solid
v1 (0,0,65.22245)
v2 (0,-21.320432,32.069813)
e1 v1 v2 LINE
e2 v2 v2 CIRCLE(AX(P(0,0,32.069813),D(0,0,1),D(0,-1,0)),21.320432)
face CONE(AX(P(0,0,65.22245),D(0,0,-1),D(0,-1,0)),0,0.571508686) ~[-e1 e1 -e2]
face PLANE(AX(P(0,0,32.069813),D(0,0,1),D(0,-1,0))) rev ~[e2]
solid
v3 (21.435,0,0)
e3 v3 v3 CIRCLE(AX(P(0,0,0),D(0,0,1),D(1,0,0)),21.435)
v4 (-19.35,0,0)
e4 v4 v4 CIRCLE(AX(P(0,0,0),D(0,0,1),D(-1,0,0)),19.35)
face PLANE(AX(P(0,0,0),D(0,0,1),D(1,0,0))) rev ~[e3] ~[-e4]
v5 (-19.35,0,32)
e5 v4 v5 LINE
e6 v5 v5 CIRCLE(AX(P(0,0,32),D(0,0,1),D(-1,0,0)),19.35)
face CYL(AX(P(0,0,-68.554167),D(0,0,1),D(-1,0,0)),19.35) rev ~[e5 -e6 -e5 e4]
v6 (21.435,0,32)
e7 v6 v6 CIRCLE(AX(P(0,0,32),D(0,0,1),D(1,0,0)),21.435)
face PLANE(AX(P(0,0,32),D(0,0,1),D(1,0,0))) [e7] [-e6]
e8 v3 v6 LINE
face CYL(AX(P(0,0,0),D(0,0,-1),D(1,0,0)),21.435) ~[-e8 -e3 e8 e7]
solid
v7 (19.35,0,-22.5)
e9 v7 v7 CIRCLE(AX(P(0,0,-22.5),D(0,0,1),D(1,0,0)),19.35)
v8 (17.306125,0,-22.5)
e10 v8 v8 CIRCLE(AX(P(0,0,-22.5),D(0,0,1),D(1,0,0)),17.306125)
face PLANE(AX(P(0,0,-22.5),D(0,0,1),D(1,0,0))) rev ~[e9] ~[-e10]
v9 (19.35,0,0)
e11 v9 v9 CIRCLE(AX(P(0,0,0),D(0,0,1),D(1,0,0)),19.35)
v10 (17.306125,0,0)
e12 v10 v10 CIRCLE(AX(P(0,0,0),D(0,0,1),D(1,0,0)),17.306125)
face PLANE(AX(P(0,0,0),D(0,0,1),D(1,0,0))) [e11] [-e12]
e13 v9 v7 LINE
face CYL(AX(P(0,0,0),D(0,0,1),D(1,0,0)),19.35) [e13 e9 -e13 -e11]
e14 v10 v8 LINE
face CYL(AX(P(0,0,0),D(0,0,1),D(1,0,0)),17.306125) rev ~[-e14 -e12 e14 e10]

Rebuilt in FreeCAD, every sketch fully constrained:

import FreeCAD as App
import Part
import Sketcher
from FreeCAD import Vector
Q = App.Units.Quantity


def add_polygon(sketch, points):
    """Adds a closed chain of lines whose ends are joined by coincident constraints."""
    first, n = sketch.GeometryCount, len(points)
    for a, b in zip(points, points[1:] + points[:1]):
        sketch.addGeometry(Part.LineSegment(App.Vector(*a, 0), App.Vector(*b, 0)), False)
    for i in range(n):
        sketch.addConstraint(Sketcher.Constraint("Coincident", first + i, 2, first + (i + 1) % n, 1))

doc = App.newDocument("Part")
params = doc.addObject("Spreadsheet::Sheet", "Params")
for row, (alias, value) in enumerate([
    ("sketch1_diameter", "42.87 mm"),
    ("pad1_length", "32 mm"),
    ("sketch2_diameter", "38.7 mm"),
    ("hole_diameter", "38.7 mm"),
    ("revolution_angle", "360 deg"),
    ("sketch4_diameter", "38.7 mm"),
    ("pad2_length", "22.5 mm"),
], start=1):
    params.set(f"A{row}", alias)
    params.set(f"B{row}", "=" + value)
    params.setAlias(f"B{row}", alias)

body = doc.addObject("PartDesign::Body", "Body")

# Sketch on XY plane
sketch1 = doc.addObject("Sketcher::SketchObject", "Sketch")
body.addObject(sketch1)
sketch1.AttachmentSupport = (doc.XY_Plane, [""])
sketch1.MapMode = "FlatFace"
sketch1.addGeometry(Part.Circle(Vector(0, 0, 0), Vector(0, 0, 1), 21.435), False)
sketch1.addConstraint([
    Sketcher.Constraint("Coincident", 0, 3, -1, 1),
    Sketcher.Constraint("Diameter", 0, Q("42.87 mm")),
])
sketch1.setExpression("Constraints[1]", "Params.sketch1_diameter")
pad1 = doc.addObject("PartDesign::Pad", "Pad")
body.addObject(pad1)
pad1.Profile = sketch1
pad1.setExpression("Length", "Params.pad1_length")

# Sketch on XY plane
sketch2 = doc.addObject("Sketcher::SketchObject", "Sketch001")
body.addObject(sketch2)
sketch2.AttachmentSupport = (doc.XY_Plane, [""])
sketch2.MapMode = "FlatFace"
sketch2.addGeometry(Part.Circle(Vector(0, 0, 0), Vector(0, 0, 1), 19.35), False)
sketch2.addConstraint([
    Sketcher.Constraint("Coincident", 0, 3, -1, 1),
    Sketcher.Constraint("Diameter", 0, Q("38.7 mm")),
])
sketch2.setExpression("Constraints[1]", "Params.sketch2_diameter")
doc.recompute()
hole = doc.addObject("PartDesign::Hole", "Hole")
body.addObject(hole)
hole.Profile = sketch2
hole.ThreadType = "None"
hole.setExpression("Diameter", "Params.hole_diameter")
hole.DepthType = "ThroughAll"
hole.Reversed = True
body2 = doc.addObject("PartDesign::Body", "Body001")

# Sketch on YZ plane
sketch3 = doc.addObject("Sketcher::SketchObject", "Sketch002")
body2.addObject(sketch3)
sketch3.AttachmentSupport = (doc.getObject("YZ_Plane001"), [""])
sketch3.MapMode = "FlatFace"
add_polygon(sketch3, [(0, 32.069813), (0, 65.22245), (-21.320432, 32.069813)])  # lines 0-2
sketch3.addConstraint([
    Sketcher.Constraint("Vertical", 0),
    Sketcher.Constraint("Horizontal", 2),
    Sketcher.Constraint("PointOnObject", 0, 2, -2),
    Sketcher.Constraint("DistanceX", 2, 1, 2, 2, Q("21.320432 mm")),
    Sketcher.Constraint("Distance", 1, Q("39.416471 mm")),
    Sketcher.Constraint("DistanceY", -1, 1, 0, 2, Q("65.22245 mm")),
])
revolution = doc.addObject("PartDesign::Revolution", "Revolution")
body2.addObject(revolution)
revolution.Profile = sketch3
revolution.ReferenceAxis = (sketch3, ["V_Axis"])
revolution.setExpression("Angle", "Params.revolution_angle")
body3 = doc.addObject("PartDesign::Body", "Body002")

# Sketch on XY plane
sketch4 = doc.addObject("Sketcher::SketchObject", "Sketch003")
body3.addObject(sketch4)
sketch4.AttachmentSupport = (doc.getObject("XY_Plane002"), [""])
sketch4.MapMode = "FlatFace"
sketch4.addGeometry([
    Part.Circle(Vector(0, 0, 0), Vector(0, 0, 1), 19.35),
    Part.Circle(Vector(0, 0, 0), Vector(0, 0, 1), 17.306125),
], False)
sketch4.addConstraint([
    Sketcher.Constraint("Coincident", 0, 3, -1, 1),
    Sketcher.Constraint("Coincident", 1, 3, -1, 1),
    Sketcher.Constraint("Diameter", 0, Q("38.7 mm")),
    Sketcher.Constraint("Diameter", 1, Q("34.61225 mm")),
])
sketch4.setExpression("Constraints[2]", "Params.sketch4_diameter")
pad2 = doc.addObject("PartDesign::Pad", "Pad001")
body3.addObject(pad2)
pad2.Profile = sketch4
pad2.setExpression("Length", "Params.pad2_length")
pad2.Reversed = True

doc.recompute()
